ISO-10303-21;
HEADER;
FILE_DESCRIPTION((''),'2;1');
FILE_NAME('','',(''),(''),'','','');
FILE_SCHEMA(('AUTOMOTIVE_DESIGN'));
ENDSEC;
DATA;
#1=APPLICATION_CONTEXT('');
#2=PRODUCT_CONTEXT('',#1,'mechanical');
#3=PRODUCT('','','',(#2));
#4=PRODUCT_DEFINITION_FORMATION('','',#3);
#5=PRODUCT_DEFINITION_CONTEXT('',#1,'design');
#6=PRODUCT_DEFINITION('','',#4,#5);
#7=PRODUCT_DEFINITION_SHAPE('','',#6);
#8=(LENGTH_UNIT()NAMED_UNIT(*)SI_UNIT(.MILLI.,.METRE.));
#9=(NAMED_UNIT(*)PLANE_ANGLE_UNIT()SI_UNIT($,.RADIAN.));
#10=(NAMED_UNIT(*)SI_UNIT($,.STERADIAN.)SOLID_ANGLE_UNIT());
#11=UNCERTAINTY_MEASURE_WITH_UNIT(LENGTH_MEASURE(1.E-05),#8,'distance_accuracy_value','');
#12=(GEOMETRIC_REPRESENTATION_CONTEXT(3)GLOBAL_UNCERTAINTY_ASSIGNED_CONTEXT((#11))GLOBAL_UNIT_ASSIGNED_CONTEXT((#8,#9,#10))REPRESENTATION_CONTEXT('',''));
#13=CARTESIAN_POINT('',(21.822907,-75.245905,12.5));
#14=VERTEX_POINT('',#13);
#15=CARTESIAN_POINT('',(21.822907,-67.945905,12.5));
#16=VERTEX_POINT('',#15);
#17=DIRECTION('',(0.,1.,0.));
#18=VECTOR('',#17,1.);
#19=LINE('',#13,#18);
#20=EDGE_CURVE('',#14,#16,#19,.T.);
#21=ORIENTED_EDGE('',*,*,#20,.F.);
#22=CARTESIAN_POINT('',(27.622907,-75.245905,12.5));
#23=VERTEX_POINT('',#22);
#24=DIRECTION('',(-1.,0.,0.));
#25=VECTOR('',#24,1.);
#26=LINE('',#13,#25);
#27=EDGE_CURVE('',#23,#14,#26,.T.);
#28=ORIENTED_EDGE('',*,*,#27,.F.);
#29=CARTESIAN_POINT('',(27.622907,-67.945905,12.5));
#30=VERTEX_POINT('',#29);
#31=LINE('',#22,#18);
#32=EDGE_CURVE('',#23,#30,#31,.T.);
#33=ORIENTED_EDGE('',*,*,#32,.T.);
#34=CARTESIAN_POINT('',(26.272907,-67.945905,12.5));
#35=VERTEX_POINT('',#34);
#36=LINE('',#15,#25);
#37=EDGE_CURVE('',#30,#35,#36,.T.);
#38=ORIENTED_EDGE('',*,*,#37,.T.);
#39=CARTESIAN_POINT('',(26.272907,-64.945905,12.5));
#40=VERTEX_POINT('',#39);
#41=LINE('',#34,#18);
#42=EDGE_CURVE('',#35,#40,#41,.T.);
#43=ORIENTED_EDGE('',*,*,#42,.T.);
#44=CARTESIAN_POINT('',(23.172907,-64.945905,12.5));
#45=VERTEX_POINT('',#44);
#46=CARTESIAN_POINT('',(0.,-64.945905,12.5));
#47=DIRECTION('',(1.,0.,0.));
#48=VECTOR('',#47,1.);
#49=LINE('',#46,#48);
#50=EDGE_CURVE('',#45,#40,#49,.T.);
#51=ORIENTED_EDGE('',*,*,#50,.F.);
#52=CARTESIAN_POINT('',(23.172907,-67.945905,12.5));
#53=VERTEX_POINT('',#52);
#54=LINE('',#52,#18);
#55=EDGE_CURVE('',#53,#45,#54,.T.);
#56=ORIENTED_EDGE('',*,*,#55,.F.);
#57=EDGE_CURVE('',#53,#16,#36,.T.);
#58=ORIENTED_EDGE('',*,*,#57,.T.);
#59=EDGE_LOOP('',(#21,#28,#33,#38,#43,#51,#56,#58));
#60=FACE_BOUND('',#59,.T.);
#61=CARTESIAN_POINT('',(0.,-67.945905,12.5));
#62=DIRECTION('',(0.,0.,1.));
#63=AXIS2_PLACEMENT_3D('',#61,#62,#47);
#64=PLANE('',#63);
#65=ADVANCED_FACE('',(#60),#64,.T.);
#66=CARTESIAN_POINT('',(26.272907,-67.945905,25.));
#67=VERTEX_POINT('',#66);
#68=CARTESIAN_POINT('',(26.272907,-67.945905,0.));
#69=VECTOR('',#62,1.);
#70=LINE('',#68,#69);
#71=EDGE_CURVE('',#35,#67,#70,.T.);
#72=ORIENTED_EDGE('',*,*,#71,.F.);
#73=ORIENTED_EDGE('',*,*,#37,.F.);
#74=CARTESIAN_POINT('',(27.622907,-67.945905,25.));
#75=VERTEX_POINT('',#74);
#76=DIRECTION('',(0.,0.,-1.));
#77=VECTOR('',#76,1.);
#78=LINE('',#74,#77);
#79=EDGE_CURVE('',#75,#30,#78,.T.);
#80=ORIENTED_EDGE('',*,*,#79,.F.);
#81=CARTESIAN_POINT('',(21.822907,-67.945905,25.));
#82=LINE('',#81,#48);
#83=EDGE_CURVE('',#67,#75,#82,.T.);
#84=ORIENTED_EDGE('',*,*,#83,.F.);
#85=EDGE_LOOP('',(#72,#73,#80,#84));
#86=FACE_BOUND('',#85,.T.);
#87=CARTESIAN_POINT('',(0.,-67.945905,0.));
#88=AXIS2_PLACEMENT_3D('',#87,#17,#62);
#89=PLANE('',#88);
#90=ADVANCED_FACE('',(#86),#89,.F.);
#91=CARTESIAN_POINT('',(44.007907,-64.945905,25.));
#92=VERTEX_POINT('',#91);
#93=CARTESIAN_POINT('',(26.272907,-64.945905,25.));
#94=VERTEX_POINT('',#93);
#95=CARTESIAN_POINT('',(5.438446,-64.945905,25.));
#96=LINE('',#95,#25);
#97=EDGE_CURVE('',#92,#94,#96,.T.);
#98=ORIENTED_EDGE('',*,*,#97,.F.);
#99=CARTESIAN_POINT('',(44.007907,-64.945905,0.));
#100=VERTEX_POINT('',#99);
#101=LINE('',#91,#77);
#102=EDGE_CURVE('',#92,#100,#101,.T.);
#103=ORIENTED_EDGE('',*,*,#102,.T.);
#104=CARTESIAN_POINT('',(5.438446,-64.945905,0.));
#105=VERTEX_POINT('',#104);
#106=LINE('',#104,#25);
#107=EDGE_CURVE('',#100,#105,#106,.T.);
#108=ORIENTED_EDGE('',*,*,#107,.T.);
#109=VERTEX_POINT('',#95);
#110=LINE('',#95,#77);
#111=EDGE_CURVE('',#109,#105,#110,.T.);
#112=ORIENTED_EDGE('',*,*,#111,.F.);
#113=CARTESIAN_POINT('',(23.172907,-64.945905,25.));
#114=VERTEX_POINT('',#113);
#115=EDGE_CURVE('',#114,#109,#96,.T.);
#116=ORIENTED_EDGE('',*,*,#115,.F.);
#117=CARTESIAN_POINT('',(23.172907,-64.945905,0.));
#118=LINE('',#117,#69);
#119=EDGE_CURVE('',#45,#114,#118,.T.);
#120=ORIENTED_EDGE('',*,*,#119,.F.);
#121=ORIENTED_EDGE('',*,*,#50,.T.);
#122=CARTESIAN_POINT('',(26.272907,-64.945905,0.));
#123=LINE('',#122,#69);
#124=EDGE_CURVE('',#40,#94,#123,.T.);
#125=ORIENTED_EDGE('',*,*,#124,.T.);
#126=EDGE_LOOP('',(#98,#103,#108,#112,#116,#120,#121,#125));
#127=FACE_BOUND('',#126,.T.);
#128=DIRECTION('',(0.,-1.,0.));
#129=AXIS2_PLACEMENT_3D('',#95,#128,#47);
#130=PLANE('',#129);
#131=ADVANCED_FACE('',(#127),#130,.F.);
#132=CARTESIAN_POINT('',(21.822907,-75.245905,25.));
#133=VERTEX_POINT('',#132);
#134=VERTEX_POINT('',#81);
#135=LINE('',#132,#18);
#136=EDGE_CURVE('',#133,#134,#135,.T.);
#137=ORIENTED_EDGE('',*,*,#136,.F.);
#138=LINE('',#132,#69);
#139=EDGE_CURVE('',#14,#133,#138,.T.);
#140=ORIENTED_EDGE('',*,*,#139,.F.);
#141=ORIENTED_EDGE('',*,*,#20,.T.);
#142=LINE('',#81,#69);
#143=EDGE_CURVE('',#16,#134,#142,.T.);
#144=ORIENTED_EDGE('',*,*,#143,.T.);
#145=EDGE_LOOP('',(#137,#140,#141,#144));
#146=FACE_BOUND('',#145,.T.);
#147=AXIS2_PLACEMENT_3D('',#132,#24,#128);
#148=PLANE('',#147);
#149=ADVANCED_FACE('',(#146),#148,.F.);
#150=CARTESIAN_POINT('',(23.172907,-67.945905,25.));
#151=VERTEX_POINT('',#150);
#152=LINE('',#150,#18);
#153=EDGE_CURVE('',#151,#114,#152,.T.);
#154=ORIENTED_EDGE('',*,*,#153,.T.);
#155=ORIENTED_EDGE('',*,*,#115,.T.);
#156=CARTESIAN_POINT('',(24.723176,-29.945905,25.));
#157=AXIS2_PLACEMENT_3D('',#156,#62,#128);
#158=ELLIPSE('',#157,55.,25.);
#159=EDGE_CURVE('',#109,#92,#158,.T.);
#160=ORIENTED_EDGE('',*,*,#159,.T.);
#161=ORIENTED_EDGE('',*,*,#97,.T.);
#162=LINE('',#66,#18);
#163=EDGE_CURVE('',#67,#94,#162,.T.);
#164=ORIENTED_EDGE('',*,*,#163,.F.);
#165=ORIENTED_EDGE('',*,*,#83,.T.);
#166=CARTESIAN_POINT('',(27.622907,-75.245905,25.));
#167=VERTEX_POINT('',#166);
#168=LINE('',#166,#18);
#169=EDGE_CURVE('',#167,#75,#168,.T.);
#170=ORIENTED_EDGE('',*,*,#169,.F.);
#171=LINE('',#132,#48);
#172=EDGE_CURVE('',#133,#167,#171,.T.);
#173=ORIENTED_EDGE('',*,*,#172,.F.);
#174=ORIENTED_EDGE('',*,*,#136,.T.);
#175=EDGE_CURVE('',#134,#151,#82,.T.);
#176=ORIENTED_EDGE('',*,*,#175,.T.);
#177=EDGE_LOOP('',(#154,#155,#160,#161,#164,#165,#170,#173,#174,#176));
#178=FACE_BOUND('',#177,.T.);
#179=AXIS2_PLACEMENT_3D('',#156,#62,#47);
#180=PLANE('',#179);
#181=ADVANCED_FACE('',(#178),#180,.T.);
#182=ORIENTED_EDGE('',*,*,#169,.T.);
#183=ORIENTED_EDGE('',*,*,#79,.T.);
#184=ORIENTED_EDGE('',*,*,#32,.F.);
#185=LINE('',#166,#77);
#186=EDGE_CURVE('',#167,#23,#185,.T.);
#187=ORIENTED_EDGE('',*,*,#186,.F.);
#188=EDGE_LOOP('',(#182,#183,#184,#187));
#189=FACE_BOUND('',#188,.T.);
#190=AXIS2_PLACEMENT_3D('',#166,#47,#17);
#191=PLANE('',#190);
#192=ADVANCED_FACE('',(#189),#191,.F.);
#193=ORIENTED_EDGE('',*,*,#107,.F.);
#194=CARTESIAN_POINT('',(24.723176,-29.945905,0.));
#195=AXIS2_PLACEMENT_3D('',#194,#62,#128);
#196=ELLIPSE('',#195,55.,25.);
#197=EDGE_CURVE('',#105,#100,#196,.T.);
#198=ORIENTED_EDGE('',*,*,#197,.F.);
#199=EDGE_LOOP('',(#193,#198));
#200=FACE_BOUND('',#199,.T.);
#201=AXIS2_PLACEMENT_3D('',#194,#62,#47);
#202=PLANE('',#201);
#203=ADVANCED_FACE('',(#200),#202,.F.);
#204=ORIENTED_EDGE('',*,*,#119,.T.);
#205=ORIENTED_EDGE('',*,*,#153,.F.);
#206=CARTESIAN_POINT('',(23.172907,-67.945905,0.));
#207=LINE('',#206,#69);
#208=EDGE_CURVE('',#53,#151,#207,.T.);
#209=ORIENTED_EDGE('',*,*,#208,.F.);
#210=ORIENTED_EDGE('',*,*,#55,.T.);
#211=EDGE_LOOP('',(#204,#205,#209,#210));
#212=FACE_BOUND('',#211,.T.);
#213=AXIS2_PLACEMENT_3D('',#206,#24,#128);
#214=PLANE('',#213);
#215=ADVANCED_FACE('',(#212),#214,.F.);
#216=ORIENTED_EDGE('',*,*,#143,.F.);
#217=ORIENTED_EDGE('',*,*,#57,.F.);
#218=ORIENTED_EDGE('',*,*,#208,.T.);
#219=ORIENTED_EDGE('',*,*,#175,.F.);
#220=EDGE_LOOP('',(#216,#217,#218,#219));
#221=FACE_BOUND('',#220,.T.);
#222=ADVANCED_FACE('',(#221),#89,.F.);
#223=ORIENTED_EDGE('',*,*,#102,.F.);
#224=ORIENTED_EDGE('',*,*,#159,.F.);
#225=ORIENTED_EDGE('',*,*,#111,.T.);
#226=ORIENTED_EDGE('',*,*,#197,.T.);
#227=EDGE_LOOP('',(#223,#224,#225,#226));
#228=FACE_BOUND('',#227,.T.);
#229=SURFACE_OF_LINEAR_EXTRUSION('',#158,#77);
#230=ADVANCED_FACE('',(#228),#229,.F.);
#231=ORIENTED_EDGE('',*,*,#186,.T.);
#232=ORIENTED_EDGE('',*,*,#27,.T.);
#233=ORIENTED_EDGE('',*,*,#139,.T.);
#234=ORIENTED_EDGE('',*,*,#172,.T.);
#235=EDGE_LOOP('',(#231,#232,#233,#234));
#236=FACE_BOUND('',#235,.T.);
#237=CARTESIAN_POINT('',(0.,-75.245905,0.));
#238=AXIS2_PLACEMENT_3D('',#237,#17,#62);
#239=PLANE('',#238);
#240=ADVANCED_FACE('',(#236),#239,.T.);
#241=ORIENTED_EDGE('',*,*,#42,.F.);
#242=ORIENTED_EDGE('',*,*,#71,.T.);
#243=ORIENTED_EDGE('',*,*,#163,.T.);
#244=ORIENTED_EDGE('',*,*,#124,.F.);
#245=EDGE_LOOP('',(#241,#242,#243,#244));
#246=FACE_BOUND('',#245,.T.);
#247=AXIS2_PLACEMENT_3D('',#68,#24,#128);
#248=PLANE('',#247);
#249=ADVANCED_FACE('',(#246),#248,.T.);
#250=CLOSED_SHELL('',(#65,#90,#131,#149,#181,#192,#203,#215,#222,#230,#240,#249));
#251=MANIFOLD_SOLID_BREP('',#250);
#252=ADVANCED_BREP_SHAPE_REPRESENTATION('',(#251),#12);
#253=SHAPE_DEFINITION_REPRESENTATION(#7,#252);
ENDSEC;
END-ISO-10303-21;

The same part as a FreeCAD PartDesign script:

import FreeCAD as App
import Part
import Sketcher

V = App.Vector


def add_polygon(sketch, points):
    """Adds a closed chain of lines whose ends are joined by coincident constraints."""
    first, n = sketch.GeometryCount, len(points)
    for a, b in zip(points, points[1:] + points[:1]):
        sketch.addGeometry(Part.LineSegment(App.Vector(*a, 0), App.Vector(*b, 0)), False)
    for i in range(n):
        sketch.addConstraint(Sketcher.Constraint("Coincident", first + i, 2, first + (i + 1) % n, 1))

doc = App.newDocument("Part")
body = doc.addObject("PartDesign::Body", "Body")

# Sketch on XY plane
sketch1 = body.newObject("Sketcher::SketchObject", "Sketch")
sketch1.AttachmentSupport = (doc.getObject("XY_Plane"), [""])
sketch1.MapMode = "FlatFace"
sketch1.addGeometry([
    Part.LineSegment(V(44.007907, -64.945905, 0), V(5.438446, -64.945905, 0)),
    Part.BSplineCurve([V(5.438446, -64.945905, 0), V(24.723176, -116.374476, 0), V(44.007907, -64.945905, 0)], [3, 3], [5.402163981, 7.164206633], False, 2, [1, 0.636363636, 1], False),
], False)
sketch1.addConstraint([
    Sketcher.Constraint("Block", 1),
    Sketcher.Constraint("Coincident", 0, 1, 1, 2),
    Sketcher.Constraint("Coincident", 1, 1, 0, 2),
])
pad1 = body.newObject("PartDesign::Pad", "Pad")
pad1.Profile = sketch1
pad1.Length = 25

# Sketch on XZ plane
sketch2 = body.newObject("Sketcher::SketchObject", "Sketch001")
sketch2.AttachmentSupport = (doc.getObject("XZ_Plane"), [""])
sketch2.MapMode = "FlatFace"
sketch2.AttachmentOffset = App.Placement(V(0, 0, 64.945905), App.Rotation())
add_polygon(sketch2, [(23.2, 12.5), (23.2, 25), (26.3, 25), (26.3, 12.5)])  # lines 0-3
sketch2.addConstraint([
    Sketcher.Constraint("Vertical", 0),
    Sketcher.Constraint("Horizontal", 1),
    Sketcher.Constraint("Vertical", 2),
    Sketcher.Constraint("Horizontal", 3),
    Sketcher.Constraint("DistanceX", 1, 1, 1, 2, 3.1),
    Sketcher.Constraint("DistanceY", 0, 1, 0, 2, 12.5),
    Sketcher.Constraint("DistanceY", -1, 1, 0, 2, 25.0),
    Sketcher.Constraint("DistanceX", -1, 1, 0, 2, 23.172907),
])
pocket1 = body.newObject("PartDesign::Pocket", "Pocket")
pocket1.Profile = sketch2
pocket1.Length = 3
pocket1.Reversed = True

# Sketch on XZ plane
sketch3 = body.newObject("Sketcher::SketchObject", "Sketch002")
sketch3.AttachmentSupport = (doc.getObject("XZ_Plane"), [""])
sketch3.MapMode = "FlatFace"
sketch3.AttachmentOffset = App.Placement(V(0, 0, 67.945905), App.Rotation())
add_polygon(sketch3, [(22, 12), (22, 25), (28, 25), (28, 12)])  # lines 0-3
sketch3.addConstraint([
    Sketcher.Constraint("Vertical", 0),
    Sketcher.Constraint("Horizontal", 1),
    Sketcher.Constraint("Vertical", 2),
    Sketcher.Constraint("Horizontal", 3),
    Sketcher.Constraint("DistanceX", 1, 1, 1, 2, 5.8),
    Sketcher.Constraint("DistanceY", 0, 1, 0, 2, 12.5),
    Sketcher.Constraint("DistanceY", -1, 1, 0, 2, 25.0),
    Sketcher.Constraint("DistanceX", -1, 1, 0, 2, 21.822907),
])
pocket2 = body.newObject("PartDesign::Pocket", "Pocket001")
pocket2.Profile = sketch3
pocket2.Length = 7.3
pocket2.Reversed = True

doc.recompute()
